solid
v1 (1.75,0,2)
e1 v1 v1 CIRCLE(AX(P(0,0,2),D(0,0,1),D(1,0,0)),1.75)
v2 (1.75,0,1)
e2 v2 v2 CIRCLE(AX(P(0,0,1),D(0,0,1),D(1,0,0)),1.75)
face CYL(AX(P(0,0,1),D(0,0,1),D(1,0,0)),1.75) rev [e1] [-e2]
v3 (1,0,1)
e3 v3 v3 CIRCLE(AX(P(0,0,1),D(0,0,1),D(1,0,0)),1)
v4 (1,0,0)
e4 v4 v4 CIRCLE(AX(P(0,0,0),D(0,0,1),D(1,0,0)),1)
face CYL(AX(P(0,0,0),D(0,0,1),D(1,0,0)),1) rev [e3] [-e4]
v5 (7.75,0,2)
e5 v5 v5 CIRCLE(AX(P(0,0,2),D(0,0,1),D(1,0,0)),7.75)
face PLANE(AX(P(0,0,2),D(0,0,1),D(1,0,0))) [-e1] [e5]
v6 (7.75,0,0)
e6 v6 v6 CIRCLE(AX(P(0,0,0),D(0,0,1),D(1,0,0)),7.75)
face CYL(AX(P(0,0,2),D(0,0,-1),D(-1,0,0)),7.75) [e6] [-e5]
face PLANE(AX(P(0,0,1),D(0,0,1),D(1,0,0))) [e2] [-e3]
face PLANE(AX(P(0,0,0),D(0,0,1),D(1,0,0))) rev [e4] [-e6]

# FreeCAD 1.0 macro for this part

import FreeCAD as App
import Part
import Sketcher
Q = App.Units.Quantity

doc = App.newDocument("Part")
body = doc.addObject("PartDesign::Body", "Body")

# Sketch on XY plane
sketch1 = doc.addObject("Sketcher::SketchObject", "Sketch")
body.addObject(sketch1)
sketch1.AttachmentSupport = (doc.XY_Plane, [""])
sketch1.MapMode = "FlatFace"
sketch1.addGeometry(Part.Circle(App.Vector(0, 0, 0), App.Vector(0, 0, 1), 8), False)
sketch1.addConstraint(Sketcher.Constraint("Coincident", 0, 3, -1, 1))
sketch1.addConstraint(Sketcher.Constraint("Diameter", 0, Q("15.5 mm")))
pad1 = doc.addObject("PartDesign::Pad", "Pad")
body.addObject(pad1)
pad1.Profile = sketch1
pad1.Length = 2

# Sketch on XY plane
sketch2 = doc.addObject("Sketcher::SketchObject", "Sketch001")
body.addObject(sketch2)
sketch2.AttachmentSupport = (doc.XY_Plane, [""])
sketch2.MapMode = "FlatFace"
sketch2.AttachmentOffset = App.Placement(App.Vector(0, 0, 2), App.Rotation())
sketch2.addGeometry(Part.Circle(App.Vector(0, 0, 0), App.Vector(0, 0, 1), 1), False)
sketch2.addConstraint(Sketcher.Constraint("Coincident", 0, 3, -1, 1))
sketch2.addConstraint(Sketcher.Constraint("Diameter", 0, Q("2 mm")))
pocket1 = doc.addObject("PartDesign::Pocket", "Pocket")
body.addObject(pocket1)
pocket1.Profile = sketch2
pocket1.Type = "ThroughAll"

# Sketch on XY plane
sketch3 = doc.addObject("Sketcher::SketchObject", "Sketch002")
body.addObject(sketch3)
sketch3.AttachmentSupport = (doc.XY_Plane, [""])
sketch3.MapMode = "FlatFace"
sketch3.AttachmentOffset = App.Placement(App.Vector(0, 0, 2), App.Rotation())
sketch3.addGeometry(Part.Circle(App.Vector(0, 0, 0), App.Vector(0, 0, 1), 1.8), False)
sketch3.addGeometry(Part.Circle(App.Vector(0, 0, 0), App.Vector(0, 0, 1), 1), False)
sketch3.addConstraint(Sketcher.Constraint("Coincident", 0, 3, -1, 1))
sketch3.addConstraint(Sketcher.Constraint("Coincident", 1, 3, -1, 1))
sketch3.addConstraint(Sketcher.Constraint("Diameter", 1, Q("2 mm")))
sketch3.addConstraint(Sketcher.Constraint("Diameter", 0, Q("3.5 mm")))
pocket2 = doc.addObject("PartDesign::Pocket", "Pocket001")
body.addObject(pocket2)
pocket2.Profile = sketch3
pocket2.Length = 1

doc.recompute()
